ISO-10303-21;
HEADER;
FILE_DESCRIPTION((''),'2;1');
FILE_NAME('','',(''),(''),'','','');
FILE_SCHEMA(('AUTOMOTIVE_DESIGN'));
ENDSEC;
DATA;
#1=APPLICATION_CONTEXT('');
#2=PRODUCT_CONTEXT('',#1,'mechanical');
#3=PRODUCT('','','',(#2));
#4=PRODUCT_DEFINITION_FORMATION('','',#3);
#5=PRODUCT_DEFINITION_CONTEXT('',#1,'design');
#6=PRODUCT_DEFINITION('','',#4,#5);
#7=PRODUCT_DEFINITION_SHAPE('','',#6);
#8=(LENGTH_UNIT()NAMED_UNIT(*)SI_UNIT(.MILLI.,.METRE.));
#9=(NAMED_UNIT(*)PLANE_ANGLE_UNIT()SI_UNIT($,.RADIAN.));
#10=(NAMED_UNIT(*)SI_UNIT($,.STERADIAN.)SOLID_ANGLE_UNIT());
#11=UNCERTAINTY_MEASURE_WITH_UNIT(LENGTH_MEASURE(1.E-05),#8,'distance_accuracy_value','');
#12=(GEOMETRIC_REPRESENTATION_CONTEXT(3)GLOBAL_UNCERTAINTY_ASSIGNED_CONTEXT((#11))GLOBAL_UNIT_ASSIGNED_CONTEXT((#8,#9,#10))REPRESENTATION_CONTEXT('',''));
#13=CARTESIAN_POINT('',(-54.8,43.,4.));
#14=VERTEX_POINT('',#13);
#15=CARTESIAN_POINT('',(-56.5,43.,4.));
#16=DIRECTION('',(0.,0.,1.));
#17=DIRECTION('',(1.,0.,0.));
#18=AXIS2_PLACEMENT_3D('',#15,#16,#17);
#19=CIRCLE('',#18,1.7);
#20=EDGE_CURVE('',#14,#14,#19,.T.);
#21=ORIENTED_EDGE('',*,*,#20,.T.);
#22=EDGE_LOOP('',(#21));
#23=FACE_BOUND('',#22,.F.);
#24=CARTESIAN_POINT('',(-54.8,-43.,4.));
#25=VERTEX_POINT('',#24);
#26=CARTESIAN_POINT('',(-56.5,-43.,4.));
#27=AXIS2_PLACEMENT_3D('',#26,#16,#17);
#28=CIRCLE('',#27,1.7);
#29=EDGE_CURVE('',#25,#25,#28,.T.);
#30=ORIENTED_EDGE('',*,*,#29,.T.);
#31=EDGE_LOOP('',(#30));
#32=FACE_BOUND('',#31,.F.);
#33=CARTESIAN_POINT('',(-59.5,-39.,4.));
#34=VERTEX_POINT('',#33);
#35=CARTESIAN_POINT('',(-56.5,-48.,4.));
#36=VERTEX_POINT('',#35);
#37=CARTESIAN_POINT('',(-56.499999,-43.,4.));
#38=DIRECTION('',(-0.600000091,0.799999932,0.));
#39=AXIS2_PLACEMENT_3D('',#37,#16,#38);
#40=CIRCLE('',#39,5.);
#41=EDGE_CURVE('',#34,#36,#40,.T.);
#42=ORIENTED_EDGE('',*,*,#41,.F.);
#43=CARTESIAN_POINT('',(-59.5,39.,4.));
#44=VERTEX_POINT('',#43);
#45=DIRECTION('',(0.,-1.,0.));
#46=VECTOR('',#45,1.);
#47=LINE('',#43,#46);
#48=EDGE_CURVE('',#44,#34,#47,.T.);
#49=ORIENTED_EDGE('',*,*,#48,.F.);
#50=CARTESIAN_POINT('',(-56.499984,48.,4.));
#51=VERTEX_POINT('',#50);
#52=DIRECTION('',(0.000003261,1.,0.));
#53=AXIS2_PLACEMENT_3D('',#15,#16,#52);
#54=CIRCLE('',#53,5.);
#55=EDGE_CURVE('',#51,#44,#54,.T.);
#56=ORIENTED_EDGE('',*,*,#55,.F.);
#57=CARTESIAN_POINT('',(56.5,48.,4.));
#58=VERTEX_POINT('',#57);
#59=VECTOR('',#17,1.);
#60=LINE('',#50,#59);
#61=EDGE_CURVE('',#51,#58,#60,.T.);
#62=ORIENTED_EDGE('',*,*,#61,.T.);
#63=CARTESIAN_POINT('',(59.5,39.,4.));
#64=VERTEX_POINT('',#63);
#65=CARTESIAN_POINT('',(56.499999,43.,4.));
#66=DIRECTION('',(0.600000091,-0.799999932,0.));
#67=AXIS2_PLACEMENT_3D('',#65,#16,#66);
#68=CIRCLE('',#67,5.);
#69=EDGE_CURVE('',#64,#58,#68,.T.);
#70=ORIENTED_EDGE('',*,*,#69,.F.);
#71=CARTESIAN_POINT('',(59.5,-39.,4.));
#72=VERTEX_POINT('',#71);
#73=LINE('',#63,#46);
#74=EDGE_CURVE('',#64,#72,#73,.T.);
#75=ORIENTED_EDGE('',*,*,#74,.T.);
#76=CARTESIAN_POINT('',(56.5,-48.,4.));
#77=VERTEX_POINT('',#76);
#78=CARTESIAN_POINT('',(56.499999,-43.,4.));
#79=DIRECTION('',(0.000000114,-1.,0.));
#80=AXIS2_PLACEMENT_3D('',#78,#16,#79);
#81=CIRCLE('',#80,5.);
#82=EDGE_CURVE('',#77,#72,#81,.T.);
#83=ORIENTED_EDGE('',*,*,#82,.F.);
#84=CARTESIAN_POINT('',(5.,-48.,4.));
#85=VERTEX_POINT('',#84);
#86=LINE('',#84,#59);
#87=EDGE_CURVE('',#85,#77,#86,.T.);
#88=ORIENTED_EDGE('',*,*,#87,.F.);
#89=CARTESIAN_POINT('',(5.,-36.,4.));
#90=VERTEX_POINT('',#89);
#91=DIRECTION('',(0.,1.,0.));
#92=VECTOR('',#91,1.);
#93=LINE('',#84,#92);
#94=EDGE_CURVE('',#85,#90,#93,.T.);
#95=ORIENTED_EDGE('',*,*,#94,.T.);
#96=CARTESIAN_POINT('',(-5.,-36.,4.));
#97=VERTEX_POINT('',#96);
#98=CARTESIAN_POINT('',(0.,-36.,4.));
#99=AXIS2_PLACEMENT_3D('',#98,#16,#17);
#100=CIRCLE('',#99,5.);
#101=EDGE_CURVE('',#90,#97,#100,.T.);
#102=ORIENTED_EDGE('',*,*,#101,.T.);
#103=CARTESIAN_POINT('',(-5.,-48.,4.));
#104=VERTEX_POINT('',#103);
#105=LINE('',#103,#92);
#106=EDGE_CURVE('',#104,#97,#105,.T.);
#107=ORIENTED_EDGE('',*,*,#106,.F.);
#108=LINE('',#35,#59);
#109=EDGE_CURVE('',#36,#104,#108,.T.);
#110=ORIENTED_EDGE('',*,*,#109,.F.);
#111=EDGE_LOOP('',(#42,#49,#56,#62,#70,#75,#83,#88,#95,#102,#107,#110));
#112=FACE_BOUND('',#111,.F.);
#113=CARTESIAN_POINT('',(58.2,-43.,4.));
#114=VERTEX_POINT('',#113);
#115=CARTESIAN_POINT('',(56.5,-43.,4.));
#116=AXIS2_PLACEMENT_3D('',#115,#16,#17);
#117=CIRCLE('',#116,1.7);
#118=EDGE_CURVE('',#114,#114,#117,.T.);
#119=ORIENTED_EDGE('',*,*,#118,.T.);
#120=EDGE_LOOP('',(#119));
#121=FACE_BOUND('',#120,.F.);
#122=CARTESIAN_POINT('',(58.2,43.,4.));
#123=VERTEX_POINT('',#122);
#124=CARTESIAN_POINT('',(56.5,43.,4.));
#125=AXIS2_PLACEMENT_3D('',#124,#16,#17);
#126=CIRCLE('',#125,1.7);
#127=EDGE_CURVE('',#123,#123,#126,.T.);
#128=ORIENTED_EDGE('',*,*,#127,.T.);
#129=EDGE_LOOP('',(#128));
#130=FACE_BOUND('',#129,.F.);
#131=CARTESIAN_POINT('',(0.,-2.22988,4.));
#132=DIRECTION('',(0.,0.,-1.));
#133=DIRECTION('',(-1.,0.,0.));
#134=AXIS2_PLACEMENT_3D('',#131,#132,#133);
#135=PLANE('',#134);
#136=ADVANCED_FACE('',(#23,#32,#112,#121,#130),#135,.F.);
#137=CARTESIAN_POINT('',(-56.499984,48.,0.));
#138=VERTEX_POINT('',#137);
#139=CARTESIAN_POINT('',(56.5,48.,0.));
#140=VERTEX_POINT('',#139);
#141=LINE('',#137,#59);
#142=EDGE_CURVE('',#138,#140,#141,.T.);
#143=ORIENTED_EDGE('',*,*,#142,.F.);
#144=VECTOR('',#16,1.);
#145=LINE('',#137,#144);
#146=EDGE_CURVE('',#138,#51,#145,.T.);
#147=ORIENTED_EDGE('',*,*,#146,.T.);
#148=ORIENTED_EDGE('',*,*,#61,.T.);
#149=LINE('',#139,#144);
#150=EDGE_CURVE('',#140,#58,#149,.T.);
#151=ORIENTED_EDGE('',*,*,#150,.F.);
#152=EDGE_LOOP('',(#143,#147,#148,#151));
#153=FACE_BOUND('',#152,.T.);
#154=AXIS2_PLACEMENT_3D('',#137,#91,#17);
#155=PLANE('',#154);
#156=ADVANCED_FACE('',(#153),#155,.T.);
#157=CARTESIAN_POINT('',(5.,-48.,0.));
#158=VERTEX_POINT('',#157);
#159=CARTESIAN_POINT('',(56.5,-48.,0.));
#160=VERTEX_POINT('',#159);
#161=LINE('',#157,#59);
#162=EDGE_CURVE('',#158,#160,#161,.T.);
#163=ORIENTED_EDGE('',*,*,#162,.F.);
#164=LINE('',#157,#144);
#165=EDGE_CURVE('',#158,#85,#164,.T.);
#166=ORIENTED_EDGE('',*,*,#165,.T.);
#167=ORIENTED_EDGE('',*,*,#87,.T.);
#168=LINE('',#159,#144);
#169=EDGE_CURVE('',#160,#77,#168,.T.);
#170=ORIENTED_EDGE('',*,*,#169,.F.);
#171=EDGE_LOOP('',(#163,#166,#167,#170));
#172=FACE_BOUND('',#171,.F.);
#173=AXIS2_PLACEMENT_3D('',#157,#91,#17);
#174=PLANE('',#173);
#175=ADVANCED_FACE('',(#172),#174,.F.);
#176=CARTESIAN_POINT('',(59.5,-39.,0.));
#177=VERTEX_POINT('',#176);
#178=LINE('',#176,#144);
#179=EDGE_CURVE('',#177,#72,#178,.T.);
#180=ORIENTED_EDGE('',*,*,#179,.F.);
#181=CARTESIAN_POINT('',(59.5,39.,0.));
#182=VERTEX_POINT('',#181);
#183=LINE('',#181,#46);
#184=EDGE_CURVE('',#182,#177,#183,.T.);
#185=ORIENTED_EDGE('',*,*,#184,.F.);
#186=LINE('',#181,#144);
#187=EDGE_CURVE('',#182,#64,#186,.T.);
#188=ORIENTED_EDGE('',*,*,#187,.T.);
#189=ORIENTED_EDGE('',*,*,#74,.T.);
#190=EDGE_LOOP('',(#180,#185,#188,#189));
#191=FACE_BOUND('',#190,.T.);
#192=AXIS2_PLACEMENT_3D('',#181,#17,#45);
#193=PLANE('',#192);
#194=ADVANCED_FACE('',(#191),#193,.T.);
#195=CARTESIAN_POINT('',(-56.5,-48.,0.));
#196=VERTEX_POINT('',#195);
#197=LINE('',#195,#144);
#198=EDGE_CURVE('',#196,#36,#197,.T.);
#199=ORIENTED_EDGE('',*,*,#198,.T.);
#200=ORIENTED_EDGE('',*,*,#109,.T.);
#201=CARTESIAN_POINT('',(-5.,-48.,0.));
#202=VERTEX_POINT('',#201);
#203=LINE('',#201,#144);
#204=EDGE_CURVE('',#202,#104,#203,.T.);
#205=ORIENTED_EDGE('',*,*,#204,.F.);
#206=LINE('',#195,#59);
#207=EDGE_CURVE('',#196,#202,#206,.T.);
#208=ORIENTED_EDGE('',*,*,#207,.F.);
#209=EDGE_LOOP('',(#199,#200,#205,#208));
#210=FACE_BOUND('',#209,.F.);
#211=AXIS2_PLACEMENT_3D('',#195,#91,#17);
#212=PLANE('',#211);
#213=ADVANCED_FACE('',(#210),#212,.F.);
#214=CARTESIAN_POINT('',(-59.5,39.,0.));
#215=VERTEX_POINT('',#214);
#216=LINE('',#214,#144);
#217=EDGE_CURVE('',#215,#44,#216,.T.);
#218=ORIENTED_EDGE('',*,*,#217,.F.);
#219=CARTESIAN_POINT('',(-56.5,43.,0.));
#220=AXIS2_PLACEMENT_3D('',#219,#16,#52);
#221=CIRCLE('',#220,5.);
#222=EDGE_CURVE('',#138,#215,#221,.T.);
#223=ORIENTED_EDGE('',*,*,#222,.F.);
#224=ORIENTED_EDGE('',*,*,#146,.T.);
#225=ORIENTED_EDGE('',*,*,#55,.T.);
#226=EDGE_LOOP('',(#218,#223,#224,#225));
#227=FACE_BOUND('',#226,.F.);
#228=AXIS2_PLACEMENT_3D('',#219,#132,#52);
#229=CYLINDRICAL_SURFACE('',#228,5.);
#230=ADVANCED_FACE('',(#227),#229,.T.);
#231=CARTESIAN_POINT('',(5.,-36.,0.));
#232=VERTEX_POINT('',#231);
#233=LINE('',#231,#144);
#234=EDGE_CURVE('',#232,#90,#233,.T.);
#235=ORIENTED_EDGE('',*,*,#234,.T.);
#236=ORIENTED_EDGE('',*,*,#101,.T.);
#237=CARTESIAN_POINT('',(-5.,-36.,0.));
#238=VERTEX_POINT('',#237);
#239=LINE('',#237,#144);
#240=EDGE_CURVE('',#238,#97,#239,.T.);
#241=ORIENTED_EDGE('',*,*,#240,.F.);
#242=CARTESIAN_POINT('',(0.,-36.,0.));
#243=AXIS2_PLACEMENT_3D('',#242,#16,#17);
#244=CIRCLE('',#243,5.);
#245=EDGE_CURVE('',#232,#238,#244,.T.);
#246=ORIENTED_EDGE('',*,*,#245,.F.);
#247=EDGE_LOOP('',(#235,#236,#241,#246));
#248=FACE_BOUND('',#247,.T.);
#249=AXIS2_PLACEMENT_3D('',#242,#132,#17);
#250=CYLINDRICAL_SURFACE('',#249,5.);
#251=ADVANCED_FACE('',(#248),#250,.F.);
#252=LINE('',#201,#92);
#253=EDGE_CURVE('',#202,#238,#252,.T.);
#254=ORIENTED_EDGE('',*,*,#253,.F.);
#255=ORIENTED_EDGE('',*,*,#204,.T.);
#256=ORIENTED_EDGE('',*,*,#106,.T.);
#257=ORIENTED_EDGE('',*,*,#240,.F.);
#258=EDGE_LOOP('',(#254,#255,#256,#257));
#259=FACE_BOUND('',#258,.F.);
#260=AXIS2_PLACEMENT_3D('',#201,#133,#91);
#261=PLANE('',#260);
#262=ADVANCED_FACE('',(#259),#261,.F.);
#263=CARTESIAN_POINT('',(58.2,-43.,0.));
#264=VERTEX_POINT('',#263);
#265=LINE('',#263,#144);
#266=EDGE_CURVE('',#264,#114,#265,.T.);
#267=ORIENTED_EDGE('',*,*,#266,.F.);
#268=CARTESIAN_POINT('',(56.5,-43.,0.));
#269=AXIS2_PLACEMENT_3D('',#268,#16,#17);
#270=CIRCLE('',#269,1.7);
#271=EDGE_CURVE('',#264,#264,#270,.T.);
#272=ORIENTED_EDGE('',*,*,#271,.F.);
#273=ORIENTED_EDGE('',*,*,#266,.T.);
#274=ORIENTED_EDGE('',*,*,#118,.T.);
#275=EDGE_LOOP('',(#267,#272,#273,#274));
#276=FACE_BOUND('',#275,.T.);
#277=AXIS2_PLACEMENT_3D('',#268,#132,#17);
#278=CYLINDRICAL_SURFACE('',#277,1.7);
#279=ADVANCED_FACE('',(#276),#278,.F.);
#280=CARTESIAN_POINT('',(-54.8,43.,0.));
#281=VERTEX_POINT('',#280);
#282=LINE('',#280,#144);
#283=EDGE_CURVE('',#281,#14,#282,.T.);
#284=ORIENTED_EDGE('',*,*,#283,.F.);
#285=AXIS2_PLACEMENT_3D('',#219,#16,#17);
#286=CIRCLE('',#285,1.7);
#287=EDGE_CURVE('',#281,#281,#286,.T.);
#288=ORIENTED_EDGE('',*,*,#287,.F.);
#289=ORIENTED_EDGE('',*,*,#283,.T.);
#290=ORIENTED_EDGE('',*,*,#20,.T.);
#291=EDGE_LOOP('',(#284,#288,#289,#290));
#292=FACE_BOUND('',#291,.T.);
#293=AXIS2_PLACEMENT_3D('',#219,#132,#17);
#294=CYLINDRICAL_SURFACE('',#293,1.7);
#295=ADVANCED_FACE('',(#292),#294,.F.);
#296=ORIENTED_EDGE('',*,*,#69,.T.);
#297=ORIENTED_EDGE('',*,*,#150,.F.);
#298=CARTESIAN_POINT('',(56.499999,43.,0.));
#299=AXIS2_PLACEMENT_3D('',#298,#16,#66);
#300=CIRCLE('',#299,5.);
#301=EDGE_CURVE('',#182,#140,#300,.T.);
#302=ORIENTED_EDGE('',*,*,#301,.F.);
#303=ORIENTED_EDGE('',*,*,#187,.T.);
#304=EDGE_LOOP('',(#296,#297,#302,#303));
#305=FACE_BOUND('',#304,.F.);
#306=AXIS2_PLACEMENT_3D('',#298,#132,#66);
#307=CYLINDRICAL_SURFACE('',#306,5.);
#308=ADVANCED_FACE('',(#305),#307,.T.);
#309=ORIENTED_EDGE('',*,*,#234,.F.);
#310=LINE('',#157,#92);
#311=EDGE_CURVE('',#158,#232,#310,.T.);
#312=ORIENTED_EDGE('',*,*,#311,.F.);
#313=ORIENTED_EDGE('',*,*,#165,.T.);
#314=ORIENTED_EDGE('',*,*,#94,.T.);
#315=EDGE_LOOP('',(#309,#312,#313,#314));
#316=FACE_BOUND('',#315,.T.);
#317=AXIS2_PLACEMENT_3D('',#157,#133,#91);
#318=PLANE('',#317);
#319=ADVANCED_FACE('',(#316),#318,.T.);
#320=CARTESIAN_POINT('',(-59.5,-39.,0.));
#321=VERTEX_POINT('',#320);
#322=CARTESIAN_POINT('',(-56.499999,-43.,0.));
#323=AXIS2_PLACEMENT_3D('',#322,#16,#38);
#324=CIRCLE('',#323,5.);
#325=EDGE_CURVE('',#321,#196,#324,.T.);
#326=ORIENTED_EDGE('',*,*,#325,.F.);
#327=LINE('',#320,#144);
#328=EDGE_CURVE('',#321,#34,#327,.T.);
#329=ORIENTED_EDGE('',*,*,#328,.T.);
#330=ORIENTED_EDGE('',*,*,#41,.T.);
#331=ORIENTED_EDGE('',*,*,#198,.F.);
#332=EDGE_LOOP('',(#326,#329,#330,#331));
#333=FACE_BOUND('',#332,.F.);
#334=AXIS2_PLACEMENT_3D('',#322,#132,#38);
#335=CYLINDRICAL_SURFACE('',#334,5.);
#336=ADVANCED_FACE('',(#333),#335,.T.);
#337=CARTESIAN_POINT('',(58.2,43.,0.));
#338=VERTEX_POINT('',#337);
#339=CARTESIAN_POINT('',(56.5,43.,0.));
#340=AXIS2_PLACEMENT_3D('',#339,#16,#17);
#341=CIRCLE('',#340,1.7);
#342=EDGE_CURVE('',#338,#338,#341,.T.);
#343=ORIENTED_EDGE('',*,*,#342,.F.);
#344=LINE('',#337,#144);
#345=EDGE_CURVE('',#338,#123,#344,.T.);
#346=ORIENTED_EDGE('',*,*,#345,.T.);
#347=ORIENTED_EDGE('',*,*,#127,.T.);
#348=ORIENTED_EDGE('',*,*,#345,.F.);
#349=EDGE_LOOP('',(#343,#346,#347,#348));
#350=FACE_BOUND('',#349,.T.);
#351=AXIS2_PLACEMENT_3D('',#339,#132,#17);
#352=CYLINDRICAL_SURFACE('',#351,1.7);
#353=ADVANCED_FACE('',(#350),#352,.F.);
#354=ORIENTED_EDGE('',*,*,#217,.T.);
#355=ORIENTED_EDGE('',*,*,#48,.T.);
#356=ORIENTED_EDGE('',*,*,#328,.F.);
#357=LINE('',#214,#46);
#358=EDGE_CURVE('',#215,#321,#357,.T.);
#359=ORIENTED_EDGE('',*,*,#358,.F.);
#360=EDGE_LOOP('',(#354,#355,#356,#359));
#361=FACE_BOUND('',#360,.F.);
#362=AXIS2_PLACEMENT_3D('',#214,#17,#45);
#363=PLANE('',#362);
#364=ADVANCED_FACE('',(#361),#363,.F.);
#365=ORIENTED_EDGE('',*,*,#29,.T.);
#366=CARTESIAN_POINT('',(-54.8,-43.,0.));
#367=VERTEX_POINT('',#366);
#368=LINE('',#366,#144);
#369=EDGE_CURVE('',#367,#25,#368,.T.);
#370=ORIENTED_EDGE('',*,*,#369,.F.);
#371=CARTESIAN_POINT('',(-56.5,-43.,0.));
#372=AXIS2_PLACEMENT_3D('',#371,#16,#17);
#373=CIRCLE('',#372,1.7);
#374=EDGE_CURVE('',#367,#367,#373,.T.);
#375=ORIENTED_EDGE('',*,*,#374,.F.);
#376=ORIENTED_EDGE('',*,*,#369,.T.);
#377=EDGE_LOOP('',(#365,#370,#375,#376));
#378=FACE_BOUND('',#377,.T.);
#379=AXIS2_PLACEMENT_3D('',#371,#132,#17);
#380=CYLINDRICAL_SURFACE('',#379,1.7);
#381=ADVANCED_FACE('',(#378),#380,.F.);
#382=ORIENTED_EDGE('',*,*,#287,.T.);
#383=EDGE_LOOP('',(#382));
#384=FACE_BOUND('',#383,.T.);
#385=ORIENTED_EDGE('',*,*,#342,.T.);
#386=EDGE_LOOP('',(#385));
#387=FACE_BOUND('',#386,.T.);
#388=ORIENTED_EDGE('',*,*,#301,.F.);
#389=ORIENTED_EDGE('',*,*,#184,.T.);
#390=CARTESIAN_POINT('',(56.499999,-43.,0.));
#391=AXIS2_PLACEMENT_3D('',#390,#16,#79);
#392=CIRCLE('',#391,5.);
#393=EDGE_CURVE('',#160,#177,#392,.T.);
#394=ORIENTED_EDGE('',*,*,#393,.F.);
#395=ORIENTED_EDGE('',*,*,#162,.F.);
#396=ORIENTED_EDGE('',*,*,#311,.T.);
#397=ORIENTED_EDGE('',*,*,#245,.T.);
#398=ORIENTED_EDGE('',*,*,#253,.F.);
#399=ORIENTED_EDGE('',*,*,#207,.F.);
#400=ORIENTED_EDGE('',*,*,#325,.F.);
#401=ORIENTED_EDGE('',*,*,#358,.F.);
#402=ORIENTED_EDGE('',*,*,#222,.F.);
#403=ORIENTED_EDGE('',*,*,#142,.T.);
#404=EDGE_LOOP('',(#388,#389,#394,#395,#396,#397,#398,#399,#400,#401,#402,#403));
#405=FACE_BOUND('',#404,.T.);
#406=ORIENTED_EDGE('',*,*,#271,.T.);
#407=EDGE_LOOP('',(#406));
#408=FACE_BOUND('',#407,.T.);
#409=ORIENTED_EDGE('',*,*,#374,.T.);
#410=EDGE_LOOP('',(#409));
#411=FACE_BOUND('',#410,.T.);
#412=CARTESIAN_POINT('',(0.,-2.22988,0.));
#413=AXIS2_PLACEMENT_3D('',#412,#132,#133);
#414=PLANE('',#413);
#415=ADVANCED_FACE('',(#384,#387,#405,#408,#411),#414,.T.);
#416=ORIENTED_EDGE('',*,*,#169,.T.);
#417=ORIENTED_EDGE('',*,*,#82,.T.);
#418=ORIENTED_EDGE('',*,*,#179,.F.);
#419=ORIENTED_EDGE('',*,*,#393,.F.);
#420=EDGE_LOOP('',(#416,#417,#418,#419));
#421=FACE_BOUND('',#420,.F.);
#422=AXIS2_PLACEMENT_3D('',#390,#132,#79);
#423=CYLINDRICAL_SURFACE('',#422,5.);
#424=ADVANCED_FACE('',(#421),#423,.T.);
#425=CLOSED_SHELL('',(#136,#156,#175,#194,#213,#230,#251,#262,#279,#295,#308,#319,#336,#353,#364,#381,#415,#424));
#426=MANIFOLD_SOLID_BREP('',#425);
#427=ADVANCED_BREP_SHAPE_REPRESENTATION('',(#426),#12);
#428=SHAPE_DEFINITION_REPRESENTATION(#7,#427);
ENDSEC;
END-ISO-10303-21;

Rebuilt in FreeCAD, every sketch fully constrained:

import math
import FreeCAD as App
import Part
import Sketcher

V = App.Vector
Q = App.Units.Quantity

doc = App.newDocument("Part")
body = doc.addObject("PartDesign::Body", "Body")

# Sketch on XY plane
sketch1 = doc.addObject("Sketcher::SketchObject", "Sketch")
body.addObject(sketch1)
sketch1.AttachmentSupport = (doc.XY_Plane, [""])
sketch1.MapMode = "FlatFace"
sketch1.addGeometry([
    Part.LineSegment(V(56.5, 48, 0), V(-56.5, 48, 0)),  # 0
    Part.ArcOfCircle(Part.Circle(V(-56.5, 43, 0), V(0, 0, 1), 5), math.radians(90), math.radians(233)),  # 1
    Part.LineSegment(V(-59.5, 39, 0), V(-59.5, -39, 0)),  # 2
    Part.ArcOfCircle(Part.Circle(V(-56.5, -43, 0), V(0, 0, 1), 5), math.radians(127), math.radians(270)),  # 3
    Part.LineSegment(V(-56.5, -48, 0), V(-5, -48, 0)),  # 4
    Part.LineSegment(V(-5, -48, 0), V(-5, -36, 0)),  # 5
    Part.ArcOfCircle(Part.Circle(V(0, -36, 0), V(0, 0, 1), 5), math.radians(0), math.radians(180)),  # 6
    Part.LineSegment(V(5, -36, 0), V(5, -48, 0)),  # 7
    Part.LineSegment(V(5, -48, 0), V(56.5, -48, 0)),  # 8
    Part.ArcOfCircle(Part.Circle(V(56.5, -43, 0), V(0, 0, 1), 5), math.radians(-90), math.radians(53)),  # 9
    Part.LineSegment(V(59.5, -39, 0), V(59.5, 39, 0)),  # 10
    Part.ArcOfCircle(Part.Circle(V(56.5, 43, 0), V(0, 0, 1), 5), math.radians(-53), math.radians(90)),  # 11
    Part.Circle(V(56.5, -43, 0), V(0, 0, 1), 1.7),  # 12
    Part.Circle(V(-56.5, -43, 0), V(0, 0, 1), 1.7),  # 13
    Part.Circle(V(56.5, 43, 0), V(0, 0, 1), 1.7),  # 14
    Part.Circle(V(-56.5, 43, 0), V(0, 0, 1), 1.7),  # 15
], False)
sketch1.addConstraint([
    Sketcher.Constraint("Coincident", 0, 2, 1, 1),
    Sketcher.Constraint("Coincident", 1, 2, 2, 1),
    Sketcher.Constraint("Coincident", 2, 2, 3, 1),
    Sketcher.Constraint("Tangent", 3, 2, 4, 1),
    Sketcher.Constraint("Coincident", 4, 2, 5, 1),
    Sketcher.Constraint("Tangent", 5, 2, 6, 2),
    Sketcher.Constraint("Tangent", 6, 1, 7, 1),
    Sketcher.Constraint("Coincident", 7, 2, 8, 1),
    Sketcher.Constraint("Tangent", 8, 2, 9, 1),
    Sketcher.Constraint("Coincident", 9, 2, 10, 1),
    Sketcher.Constraint("Coincident", 10, 2, 11, 1),
    Sketcher.Constraint("Tangent", 11, 2, 0, 1),
    Sketcher.Constraint("Horizontal", 0),
    Sketcher.Constraint("Vertical", 2),
    Sketcher.Constraint("Horizontal", 4),
    Sketcher.Constraint("Vertical", 5),
    Sketcher.Constraint("Vertical", 7),
    Sketcher.Constraint("Horizontal", 8),
    Sketcher.Constraint("Vertical", 10),
    Sketcher.Constraint("Coincident", 12, 3, 9, 3),
    Sketcher.Constraint("Coincident", 13, 3, 3, 3),
    Sketcher.Constraint("Coincident", 14, 3, 11, 3),
    Sketcher.Constraint("Coincident", 15, 3, 1, 3),
    Sketcher.Constraint("Equal", 1, 3),
    Sketcher.Constraint("Equal", 3, 6),
    Sketcher.Constraint("Equal", 6, 9),
    Sketcher.Constraint("Equal", 9, 11),
    Sketcher.Constraint("Equal", 12, 13),
    Sketcher.Constraint("Equal", 13, 14),
    Sketcher.Constraint("Equal", 14, 15),
    Sketcher.Constraint("Symmetric", 1, 3, 9, 3, -1, 1),
    Sketcher.Constraint("Symmetric", 3, 3, 11, 3, -1, 1),
    Sketcher.Constraint("Symmetric", 2, 2, 9, 2, -2),
    Sketcher.Constraint("PointOnObject", 6, 3, -2),
    Sketcher.Constraint("Radius", 1, Q("5 mm")),
    Sketcher.Constraint("Diameter", 12, Q("3.4 mm")),
    Sketcher.Constraint("DistanceY", 2, 2, 2, 1, Q("78 mm")),
    Sketcher.Constraint("DistanceY", 5, 1, 5, 2, Q("12 mm")),
    Sketcher.Constraint("DistanceX", 4, 1, 4, 2, Q("51.5 mm")),
    Sketcher.Constraint("DistanceY", -1, 1, 1, 3, Q("43 mm")),
    Sketcher.Constraint("DistanceX", 0, 2, 0, 1, Q("112.999984 mm")),
])
pad1 = doc.addObject("PartDesign::Pad", "Pad")
body.addObject(pad1)
pad1.Profile = sketch1
pad1.Length = 4

doc.recompute()
